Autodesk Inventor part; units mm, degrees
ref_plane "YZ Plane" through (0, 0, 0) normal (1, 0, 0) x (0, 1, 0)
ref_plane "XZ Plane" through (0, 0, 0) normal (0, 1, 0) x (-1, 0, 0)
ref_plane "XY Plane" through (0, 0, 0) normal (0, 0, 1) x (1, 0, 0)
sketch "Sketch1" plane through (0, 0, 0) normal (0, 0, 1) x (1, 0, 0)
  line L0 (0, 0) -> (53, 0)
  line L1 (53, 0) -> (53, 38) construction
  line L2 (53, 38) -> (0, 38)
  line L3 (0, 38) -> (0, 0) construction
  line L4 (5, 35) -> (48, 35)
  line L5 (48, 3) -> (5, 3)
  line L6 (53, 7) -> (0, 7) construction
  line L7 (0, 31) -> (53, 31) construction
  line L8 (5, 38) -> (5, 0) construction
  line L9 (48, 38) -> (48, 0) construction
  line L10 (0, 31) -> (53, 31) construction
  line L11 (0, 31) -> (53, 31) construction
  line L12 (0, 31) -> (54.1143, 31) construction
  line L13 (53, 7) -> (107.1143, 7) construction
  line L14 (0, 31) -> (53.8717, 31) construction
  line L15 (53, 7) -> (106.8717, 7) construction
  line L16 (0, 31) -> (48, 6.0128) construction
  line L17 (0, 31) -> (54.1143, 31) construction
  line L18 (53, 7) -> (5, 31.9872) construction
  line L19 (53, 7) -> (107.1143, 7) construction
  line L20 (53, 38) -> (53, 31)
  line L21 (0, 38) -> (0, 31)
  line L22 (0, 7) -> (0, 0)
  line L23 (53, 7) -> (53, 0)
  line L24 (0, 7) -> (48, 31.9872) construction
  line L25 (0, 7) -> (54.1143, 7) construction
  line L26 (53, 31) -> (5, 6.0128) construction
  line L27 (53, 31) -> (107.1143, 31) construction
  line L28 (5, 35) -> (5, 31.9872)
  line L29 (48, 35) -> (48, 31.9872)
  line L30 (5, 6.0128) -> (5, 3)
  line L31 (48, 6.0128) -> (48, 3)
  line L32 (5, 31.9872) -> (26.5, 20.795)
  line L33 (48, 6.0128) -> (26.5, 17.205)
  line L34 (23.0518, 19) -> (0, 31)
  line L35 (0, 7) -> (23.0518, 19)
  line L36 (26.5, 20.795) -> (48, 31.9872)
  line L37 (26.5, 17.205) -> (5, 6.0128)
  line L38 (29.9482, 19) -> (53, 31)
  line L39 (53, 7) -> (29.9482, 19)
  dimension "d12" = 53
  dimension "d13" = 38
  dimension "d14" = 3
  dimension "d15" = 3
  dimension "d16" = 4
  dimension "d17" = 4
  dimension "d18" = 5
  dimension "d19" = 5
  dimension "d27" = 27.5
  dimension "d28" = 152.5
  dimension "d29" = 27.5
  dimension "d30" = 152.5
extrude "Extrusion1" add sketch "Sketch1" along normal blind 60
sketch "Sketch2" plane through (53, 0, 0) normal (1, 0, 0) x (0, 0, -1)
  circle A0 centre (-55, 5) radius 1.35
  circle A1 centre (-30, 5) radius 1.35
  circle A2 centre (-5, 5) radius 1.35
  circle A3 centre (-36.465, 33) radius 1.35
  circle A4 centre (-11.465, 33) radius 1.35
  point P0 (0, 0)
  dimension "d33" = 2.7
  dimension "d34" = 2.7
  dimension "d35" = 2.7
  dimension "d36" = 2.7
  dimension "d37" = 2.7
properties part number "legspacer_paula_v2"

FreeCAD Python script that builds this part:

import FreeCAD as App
import Part
import Sketcher
Q = App.Units.Quantity


def add_polygon(sketch, points):
    """Adds a closed chain of lines whose ends are joined by coincident constraints."""
    first, n = sketch.GeometryCount, len(points)
    for a, b in zip(points, points[1:] + points[:1]):
        sketch.addGeometry(Part.LineSegment(App.Vector(*a, 0), App.Vector(*b, 0)), False)
    for i in range(n):
        sketch.addConstraint(Sketcher.Constraint("Coincident", first + i, 2, first + (i + 1) % n, 1))

doc = App.newDocument("Part")
body = doc.addObject("PartDesign::Body", "Body")

# Sketch on XY plane
sketch1 = body.newObject("Sketcher::SketchObject", "Sketch")
sketch1.AttachmentSupport = (doc.getObject("XY_Plane"), [""])
sketch1.MapMode = "FlatFace"
add_polygon(sketch1, [(0, 7), (0, 0), (53, 0), (53, 7), (29.9482, 19), (53, 31), (53, 38), (0, 38), (0, 31), (23.0518, 19)])  # lines 0-9
add_polygon(sketch1, [(48, 6.0128), (48, 3), (5, 3), (5, 6.0128), (26.5, 17.205)])  # lines 10-14
add_polygon(sketch1, [(5, 31.9872), (5, 35), (48, 35), (48, 31.9872), (26.5, 20.795)])  # lines 15-19
sketch1.addConstraint(Sketcher.Constraint("Vertical", 0))
sketch1.addConstraint(Sketcher.Constraint("Horizontal", 1))
sketch1.addConstraint(Sketcher.Constraint("Vertical", 2))
sketch1.addConstraint(Sketcher.Constraint("Vertical", 5))
sketch1.addConstraint(Sketcher.Constraint("Horizontal", 6))
sketch1.addConstraint(Sketcher.Constraint("Vertical", 7))
sketch1.addConstraint(Sketcher.Constraint("Vertical", 10))
sketch1.addConstraint(Sketcher.Constraint("Horizontal", 11))
sketch1.addConstraint(Sketcher.Constraint("Vertical", 12))
sketch1.addConstraint(Sketcher.Constraint("Vertical", 15))
sketch1.addConstraint(Sketcher.Constraint("Horizontal", 16))
sketch1.addConstraint(Sketcher.Constraint("Vertical", 17))
sketch1.addConstraint(Sketcher.Constraint("Coincident", 0, 2, -1, 1))
sketch1.addConstraint(Sketcher.Constraint("PointOnObject", 6, 2, -2))
sketch1.addConstraint(Sketcher.Constraint("Parallel", 3, 8))
sketch1.addConstraint(Sketcher.Constraint("Parallel", 4, 9))
sketch1.addConstraint(Sketcher.Constraint("Parallel", 9, 13))
sketch1.addConstraint(Sketcher.Constraint("Parallel", 8, 14))
sketch1.addConstraint(Sketcher.Constraint("Parallel", 13, 18))
sketch1.addConstraint(Sketcher.Constraint("Parallel", 14, 19))
sketch1.addConstraint(Sketcher.Constraint("Horizontal", 4, 2, 7, 2))
sketch1.addConstraint(Sketcher.Constraint("Horizontal", 3, 2, 8, 2))
sketch1.addConstraint(Sketcher.Constraint("Horizontal", 2, 2, 9, 2))
sketch1.addConstraint(Sketcher.Constraint("Horizontal", 12, 2, 14, 2))
sketch1.addConstraint(Sketcher.Constraint("Horizontal", 17, 2, 19, 2))
sketch1.addConstraint(Sketcher.Constraint("Vertical", 2, 2, 4, 2))
sketch1.addConstraint(Sketcher.Constraint("Vertical", 12, 2, 15, 2))
sketch1.addConstraint(Sketcher.Constraint("Vertical", 14, 2, 16, 2))
sketch1.addConstraint(Sketcher.Constraint("Equal", 2, 5))
sketch1.addConstraint(Sketcher.Constraint("Equal", 12, 15))
sketch1.addConstraint(Sketcher.Constraint("DistanceX", 1, 1, 1, 2, Q("53 mm")))
sketch1.addConstraint(Sketcher.Constraint("DistanceY", -1, 1, 5, 2, Q("38 mm")))
sketch1.addConstraint(Sketcher.Constraint("DistanceY", -1, 1, 10, 2, Q("3 mm")))
sketch1.addConstraint(Sketcher.Constraint("DistanceX", -1, 1, 11, 2, Q("5 mm")))
sketch1.addConstraint(Sketcher.Constraint("Angle", 3, Q("152.5 deg")))
sketch1.addConstraint(Sketcher.Constraint("DistanceX", 10, 2, 1, 2, Q("5 mm")))
sketch1.addConstraint(Sketcher.Constraint("DistanceY", 10, 2, 2, 2, Q("4 mm")))
sketch1.addConstraint(Sketcher.Constraint("DistanceY", 15, 2, 6, 2, Q("3 mm")))
sketch1.addConstraint(Sketcher.Constraint("DistanceY", 13, 2, 18, 2, Q("3.59 mm")))
pad1 = body.newObject("PartDesign::Pad", "Pad")
pad1.Profile = sketch1
pad1.Length = 60

doc.recompute()
